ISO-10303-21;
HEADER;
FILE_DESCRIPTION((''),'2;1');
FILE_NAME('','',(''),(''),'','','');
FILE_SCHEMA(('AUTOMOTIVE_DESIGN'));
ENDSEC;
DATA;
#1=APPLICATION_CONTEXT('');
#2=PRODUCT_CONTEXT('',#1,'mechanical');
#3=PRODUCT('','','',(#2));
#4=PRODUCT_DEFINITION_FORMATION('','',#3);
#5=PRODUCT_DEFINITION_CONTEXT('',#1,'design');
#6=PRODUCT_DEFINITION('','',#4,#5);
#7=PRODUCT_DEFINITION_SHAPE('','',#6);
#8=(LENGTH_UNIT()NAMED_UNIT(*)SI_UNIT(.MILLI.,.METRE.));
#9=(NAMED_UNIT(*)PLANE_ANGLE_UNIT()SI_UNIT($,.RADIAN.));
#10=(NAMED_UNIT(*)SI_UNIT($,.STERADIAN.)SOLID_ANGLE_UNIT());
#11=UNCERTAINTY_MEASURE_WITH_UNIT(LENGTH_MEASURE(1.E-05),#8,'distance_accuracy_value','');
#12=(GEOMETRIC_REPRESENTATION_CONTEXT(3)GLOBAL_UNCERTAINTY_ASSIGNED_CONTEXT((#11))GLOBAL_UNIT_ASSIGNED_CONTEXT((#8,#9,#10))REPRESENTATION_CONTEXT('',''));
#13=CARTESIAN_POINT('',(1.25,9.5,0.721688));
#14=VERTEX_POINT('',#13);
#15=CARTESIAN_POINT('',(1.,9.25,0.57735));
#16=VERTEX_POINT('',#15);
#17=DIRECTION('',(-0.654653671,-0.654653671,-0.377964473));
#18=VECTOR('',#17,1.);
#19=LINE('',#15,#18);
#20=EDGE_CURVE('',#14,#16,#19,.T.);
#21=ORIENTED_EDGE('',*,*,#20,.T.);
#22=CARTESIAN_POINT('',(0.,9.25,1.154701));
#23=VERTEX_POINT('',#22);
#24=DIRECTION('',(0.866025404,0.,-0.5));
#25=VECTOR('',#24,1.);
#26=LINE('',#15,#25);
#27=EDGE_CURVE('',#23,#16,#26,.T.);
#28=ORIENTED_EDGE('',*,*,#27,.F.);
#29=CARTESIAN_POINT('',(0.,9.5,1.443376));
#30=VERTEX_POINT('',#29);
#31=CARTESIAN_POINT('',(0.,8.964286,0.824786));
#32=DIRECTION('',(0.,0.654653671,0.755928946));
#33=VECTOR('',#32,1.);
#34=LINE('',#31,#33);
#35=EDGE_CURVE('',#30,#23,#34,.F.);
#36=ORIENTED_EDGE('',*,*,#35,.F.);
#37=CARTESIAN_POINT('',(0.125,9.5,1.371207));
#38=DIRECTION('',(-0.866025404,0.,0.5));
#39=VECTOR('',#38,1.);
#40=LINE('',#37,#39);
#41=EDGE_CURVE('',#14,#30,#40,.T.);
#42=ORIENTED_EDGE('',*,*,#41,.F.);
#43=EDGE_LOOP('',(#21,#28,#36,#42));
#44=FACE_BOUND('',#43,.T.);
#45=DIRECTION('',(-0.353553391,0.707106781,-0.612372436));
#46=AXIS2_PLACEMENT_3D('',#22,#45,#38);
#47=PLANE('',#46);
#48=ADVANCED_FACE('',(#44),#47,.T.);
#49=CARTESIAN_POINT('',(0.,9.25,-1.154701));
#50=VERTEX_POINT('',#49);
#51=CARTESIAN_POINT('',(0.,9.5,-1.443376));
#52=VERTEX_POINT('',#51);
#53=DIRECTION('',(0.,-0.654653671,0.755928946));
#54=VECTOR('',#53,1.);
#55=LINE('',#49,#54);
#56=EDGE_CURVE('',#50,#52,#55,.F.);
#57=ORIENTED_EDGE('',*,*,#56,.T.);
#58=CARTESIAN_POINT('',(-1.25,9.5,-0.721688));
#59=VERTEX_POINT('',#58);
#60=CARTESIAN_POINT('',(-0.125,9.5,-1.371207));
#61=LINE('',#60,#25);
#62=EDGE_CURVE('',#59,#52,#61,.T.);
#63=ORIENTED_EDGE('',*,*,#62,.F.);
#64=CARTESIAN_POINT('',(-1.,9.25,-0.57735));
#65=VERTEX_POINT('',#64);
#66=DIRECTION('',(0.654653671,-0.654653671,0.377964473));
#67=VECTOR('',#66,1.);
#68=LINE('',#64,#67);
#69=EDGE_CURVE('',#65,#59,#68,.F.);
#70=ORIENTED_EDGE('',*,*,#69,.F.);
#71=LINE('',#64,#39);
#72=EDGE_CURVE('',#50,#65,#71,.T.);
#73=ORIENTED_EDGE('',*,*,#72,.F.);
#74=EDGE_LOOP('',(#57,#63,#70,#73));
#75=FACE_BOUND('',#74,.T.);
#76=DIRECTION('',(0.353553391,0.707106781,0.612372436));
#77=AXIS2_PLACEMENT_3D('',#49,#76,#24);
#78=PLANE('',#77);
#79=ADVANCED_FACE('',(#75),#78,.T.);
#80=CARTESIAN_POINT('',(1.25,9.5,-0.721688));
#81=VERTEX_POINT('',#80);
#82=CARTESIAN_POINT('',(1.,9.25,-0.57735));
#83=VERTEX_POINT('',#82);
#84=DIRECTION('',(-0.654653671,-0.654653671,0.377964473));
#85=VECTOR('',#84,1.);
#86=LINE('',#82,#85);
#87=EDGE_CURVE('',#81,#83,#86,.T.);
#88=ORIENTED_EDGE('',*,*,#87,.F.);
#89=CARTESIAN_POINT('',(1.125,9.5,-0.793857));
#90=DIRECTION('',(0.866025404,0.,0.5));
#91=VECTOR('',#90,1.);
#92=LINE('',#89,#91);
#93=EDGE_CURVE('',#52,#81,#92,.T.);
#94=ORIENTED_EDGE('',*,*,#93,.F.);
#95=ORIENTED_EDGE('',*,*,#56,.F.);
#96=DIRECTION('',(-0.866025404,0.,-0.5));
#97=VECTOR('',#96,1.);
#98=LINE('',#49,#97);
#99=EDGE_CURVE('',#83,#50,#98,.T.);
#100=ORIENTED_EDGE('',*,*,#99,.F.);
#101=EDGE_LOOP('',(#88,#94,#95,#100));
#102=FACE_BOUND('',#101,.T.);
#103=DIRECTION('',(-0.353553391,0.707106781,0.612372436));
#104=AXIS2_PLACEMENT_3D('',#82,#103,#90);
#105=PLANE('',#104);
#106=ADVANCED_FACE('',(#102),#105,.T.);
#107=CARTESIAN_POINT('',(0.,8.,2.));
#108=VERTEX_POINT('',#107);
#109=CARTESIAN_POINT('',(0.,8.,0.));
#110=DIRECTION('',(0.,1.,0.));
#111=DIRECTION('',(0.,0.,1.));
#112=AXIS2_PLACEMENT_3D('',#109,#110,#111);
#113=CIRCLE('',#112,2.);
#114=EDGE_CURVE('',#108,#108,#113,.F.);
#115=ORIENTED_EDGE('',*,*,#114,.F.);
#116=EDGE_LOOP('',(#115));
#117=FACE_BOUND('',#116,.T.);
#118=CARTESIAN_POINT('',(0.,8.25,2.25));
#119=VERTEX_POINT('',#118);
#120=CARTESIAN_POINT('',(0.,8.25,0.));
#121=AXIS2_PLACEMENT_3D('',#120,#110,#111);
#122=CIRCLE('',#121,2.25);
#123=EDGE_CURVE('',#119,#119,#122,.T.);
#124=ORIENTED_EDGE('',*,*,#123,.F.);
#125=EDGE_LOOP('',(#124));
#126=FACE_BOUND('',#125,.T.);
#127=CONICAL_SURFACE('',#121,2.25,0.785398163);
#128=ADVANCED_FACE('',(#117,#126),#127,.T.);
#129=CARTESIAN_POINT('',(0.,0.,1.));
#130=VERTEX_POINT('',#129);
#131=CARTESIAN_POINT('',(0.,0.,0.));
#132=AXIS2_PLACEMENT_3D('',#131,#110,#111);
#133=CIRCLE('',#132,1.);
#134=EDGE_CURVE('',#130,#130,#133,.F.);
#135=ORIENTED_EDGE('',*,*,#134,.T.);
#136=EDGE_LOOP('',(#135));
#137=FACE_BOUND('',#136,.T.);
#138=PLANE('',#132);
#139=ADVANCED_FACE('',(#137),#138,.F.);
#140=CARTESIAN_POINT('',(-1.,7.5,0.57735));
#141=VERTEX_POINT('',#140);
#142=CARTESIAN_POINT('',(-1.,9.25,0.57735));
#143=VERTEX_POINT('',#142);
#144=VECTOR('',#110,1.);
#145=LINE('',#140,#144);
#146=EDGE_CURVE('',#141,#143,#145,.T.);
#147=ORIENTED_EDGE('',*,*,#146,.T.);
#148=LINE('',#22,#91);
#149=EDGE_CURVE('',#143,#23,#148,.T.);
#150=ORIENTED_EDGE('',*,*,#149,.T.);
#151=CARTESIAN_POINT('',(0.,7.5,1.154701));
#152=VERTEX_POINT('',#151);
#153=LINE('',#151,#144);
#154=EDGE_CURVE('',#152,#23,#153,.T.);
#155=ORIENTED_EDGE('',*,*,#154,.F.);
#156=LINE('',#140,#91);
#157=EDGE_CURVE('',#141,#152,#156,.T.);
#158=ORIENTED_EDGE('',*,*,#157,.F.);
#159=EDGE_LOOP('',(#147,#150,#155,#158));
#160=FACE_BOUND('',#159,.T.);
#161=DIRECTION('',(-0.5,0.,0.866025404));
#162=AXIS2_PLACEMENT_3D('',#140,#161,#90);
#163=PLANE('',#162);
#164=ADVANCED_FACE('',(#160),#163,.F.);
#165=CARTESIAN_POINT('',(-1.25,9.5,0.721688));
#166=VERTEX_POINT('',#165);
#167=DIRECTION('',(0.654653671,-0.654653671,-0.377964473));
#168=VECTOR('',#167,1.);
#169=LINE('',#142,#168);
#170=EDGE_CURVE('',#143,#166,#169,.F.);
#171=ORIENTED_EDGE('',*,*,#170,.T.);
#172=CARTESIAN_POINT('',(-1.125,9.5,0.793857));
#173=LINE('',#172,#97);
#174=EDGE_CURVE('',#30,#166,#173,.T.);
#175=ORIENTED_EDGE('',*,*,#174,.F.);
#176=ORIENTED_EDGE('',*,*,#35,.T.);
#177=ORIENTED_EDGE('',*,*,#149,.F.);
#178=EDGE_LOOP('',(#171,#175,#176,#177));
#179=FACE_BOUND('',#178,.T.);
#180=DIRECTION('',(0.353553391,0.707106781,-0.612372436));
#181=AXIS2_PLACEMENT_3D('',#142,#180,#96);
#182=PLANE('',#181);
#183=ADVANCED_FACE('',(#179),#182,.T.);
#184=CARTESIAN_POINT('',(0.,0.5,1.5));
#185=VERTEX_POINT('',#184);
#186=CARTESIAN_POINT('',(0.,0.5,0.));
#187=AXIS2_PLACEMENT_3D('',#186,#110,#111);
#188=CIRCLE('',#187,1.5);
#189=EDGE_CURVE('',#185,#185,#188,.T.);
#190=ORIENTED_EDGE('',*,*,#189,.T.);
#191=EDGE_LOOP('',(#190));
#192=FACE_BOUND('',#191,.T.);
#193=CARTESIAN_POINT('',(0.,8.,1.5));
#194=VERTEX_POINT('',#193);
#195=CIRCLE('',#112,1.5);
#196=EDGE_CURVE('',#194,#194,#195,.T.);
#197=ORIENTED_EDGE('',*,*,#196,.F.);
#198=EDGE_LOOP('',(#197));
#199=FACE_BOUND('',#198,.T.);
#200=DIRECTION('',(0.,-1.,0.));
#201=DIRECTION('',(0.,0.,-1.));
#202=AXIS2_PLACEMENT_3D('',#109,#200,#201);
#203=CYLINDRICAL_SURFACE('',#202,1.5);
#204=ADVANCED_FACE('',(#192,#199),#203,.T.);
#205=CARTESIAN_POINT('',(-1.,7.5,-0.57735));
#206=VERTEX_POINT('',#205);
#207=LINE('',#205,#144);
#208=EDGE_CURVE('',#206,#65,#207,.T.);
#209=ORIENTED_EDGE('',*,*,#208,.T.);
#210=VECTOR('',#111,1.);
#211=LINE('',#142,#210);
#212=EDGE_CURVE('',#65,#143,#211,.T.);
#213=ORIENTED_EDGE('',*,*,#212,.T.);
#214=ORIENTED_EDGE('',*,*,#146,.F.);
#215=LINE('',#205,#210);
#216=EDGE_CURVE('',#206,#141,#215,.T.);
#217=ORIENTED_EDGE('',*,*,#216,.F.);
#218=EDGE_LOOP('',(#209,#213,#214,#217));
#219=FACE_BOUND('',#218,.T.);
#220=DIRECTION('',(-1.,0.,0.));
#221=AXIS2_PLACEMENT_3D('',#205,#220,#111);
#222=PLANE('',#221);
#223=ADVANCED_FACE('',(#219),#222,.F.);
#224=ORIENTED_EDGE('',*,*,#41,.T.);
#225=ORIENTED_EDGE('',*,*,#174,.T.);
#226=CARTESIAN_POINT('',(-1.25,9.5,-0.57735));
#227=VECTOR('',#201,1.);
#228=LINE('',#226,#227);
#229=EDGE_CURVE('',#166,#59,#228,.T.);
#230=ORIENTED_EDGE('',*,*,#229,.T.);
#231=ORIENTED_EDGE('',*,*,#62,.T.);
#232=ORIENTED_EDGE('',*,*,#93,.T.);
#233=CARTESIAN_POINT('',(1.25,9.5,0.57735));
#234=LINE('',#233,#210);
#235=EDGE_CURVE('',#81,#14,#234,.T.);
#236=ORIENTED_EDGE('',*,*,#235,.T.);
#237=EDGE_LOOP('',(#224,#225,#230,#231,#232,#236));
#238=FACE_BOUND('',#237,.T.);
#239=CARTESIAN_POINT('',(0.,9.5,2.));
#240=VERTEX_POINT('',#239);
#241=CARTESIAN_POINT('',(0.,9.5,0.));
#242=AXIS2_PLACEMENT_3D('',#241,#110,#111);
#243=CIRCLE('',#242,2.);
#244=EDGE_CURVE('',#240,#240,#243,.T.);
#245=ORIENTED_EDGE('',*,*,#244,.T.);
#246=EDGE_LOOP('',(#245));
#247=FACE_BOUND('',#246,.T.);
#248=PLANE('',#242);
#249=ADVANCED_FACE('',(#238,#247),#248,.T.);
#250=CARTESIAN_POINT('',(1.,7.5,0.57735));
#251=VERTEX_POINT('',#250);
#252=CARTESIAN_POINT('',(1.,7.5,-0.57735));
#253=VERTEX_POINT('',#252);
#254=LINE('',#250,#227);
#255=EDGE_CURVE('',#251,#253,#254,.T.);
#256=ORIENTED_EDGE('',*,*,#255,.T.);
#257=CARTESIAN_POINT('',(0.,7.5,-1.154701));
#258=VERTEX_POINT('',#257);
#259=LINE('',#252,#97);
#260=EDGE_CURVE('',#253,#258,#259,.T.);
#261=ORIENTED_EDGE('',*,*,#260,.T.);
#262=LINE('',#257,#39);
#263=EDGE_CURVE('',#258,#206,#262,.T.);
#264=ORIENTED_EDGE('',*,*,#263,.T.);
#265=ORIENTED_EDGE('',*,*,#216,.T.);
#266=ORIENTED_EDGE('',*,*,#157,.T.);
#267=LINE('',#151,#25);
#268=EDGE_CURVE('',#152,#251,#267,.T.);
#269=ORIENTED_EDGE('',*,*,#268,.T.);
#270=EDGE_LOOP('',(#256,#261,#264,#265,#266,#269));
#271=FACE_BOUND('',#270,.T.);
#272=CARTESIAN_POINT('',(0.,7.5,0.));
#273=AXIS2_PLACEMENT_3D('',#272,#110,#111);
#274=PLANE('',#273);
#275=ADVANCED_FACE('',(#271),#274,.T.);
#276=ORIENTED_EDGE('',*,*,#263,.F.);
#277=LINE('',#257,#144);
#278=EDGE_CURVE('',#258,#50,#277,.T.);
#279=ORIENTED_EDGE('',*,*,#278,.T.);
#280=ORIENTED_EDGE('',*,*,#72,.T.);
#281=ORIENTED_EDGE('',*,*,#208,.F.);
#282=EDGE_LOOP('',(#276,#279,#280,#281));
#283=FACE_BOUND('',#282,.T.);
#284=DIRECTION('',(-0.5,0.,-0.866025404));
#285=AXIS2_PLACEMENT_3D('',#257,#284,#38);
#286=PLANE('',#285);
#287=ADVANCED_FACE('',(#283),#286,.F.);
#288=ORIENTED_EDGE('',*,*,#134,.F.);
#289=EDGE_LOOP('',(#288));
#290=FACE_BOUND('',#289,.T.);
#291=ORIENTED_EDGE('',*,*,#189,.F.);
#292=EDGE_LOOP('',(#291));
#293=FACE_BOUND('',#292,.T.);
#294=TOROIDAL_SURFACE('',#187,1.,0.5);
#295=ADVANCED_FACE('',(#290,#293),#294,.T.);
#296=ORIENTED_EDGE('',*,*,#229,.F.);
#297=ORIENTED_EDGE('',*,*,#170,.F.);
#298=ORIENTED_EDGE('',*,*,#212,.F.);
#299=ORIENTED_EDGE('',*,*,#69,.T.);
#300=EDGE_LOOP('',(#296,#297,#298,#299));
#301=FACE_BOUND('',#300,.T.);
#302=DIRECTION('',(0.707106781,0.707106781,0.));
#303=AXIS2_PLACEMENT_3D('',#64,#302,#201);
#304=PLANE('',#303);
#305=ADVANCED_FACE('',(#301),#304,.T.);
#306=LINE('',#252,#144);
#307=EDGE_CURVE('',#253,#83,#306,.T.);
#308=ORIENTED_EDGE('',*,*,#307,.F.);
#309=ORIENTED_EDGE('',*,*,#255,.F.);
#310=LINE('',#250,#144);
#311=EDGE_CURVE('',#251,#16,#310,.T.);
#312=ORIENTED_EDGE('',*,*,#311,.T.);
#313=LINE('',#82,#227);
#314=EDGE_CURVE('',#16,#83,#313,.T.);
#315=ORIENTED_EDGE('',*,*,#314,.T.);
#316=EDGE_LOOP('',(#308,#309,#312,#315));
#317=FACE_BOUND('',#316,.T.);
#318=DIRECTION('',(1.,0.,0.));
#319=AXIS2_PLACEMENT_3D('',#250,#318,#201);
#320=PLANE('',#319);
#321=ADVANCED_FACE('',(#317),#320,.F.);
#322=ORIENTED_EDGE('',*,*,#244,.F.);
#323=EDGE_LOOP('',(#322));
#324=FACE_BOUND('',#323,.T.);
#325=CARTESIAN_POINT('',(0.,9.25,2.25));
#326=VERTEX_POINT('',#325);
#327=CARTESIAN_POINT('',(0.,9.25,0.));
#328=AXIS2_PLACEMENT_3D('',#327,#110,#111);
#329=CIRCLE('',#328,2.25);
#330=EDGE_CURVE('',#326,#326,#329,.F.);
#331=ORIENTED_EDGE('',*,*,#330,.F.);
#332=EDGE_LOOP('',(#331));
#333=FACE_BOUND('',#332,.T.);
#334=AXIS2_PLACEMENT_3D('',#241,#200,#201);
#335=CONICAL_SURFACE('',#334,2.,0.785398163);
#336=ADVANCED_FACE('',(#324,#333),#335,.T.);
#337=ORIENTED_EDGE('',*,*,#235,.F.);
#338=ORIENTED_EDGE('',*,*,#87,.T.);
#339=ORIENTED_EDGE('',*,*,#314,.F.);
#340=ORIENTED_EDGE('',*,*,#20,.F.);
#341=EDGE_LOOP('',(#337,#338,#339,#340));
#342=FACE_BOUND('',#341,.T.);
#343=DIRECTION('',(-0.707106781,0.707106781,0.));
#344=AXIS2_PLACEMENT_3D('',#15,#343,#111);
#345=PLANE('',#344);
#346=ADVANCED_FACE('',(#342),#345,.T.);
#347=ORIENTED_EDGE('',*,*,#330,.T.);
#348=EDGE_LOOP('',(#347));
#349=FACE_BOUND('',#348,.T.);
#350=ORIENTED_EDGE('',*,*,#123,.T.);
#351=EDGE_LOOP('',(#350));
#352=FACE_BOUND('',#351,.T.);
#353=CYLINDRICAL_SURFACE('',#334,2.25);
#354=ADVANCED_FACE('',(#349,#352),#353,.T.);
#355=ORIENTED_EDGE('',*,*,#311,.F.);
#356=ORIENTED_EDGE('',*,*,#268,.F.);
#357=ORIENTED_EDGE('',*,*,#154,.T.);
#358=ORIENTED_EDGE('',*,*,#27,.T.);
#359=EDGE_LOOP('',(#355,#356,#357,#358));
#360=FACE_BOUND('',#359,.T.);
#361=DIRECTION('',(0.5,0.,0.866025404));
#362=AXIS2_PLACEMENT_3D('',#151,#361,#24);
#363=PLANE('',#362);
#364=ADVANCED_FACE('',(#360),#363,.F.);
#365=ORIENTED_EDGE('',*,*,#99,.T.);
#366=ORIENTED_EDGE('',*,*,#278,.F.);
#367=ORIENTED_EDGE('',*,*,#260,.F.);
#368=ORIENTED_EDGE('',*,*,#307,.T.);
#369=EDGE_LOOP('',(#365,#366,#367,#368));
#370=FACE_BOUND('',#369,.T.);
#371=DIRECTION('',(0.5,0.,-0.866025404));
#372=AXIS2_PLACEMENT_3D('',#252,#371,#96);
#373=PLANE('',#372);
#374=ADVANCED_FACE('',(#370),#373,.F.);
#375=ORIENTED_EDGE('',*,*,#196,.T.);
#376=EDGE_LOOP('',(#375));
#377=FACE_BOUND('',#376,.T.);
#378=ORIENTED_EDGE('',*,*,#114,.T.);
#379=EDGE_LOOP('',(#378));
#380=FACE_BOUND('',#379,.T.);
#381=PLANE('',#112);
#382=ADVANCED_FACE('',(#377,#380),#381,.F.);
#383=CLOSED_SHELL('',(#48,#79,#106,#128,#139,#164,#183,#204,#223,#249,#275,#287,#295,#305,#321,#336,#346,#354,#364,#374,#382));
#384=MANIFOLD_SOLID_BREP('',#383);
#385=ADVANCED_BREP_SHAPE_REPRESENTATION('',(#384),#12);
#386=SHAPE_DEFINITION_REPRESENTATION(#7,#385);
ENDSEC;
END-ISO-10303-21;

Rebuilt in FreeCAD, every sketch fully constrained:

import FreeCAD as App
import Part
import Sketcher

V = App.Vector
Q = App.Units.Quantity


def edges_at(feature, points):
    """Names of the edges that pass closest to the given points."""
    edges = feature.Shape.Edges
    near = lambda p: min(range(len(edges)), key=lambda i: edges[i].distToShape(Part.Vertex(*p))[0])
    return sorted({f"Edge{near(p) + 1}" for p in points})

doc = App.newDocument("Part")
body = doc.addObject("PartDesign::Body", "Body")

sketch1 = doc.addObject("Sketcher::SketchObject", "Sketch")
body.addObject(sketch1)
sketch1.AttachmentSupport = (doc.XZ_Plane, [""])
sketch1.MapMode = "FlatFace"
sketch1.addGeometry(Part.Circle(V(0, 0, 0), V(0, 0, 1), 1.5), False)
sketch1.addConstraint(Sketcher.Constraint("Coincident", 0, 3, -1, 1))
sketch1.addConstraint(Sketcher.Constraint("Diameter", 0, 3.0))
pad1 = doc.addObject("PartDesign::Pad", "Pad")
body.addObject(pad1)
pad1.Profile = sketch1
pad1.Length = 8
pad1.Reversed = True

sketch2 = doc.addObject("Sketcher::SketchObject", "Sketch001")
body.addObject(sketch2)
sketch2.AttachmentSupport = (doc.XZ_Plane, [""])
sketch2.MapMode = "FlatFace"
sketch2.AttachmentOffset = App.Placement(V(0, 0, -8), App.Rotation())
sketch2.addGeometry(Part.Circle(V(0, 0, 0), V(0, 0, 1), 2.2), False)
sketch2.addConstraint(Sketcher.Constraint("Coincident", 0, 3, -1, 1))
sketch2.addConstraint(Sketcher.Constraint("Diameter", 0, 4.5))
pad2 = doc.addObject("PartDesign::Pad", "Pad001")
body.addObject(pad2)
pad2.Profile = sketch2
pad2.Length = 1.5
pad2.Reversed = True

sketch3 = doc.addObject("Sketcher::SketchObject", "Sketch002")
body.addObject(sketch3)
sketch3.AttachmentSupport = (doc.XZ_Plane, [""])
sketch3.MapMode = "FlatFace"
sketch3.AttachmentOffset = App.Placement(V(0, 0, -9.5), App.Rotation())
sketch3.addGeometry(Part.LineSegment(V(0, -1.2, 0), V(-1, -0.6, 0)), False)
sketch3.addGeometry(Part.LineSegment(V(-1, -0.6, 0), V(-1, 0.6, 0)), False)
sketch3.addGeometry(Part.LineSegment(V(-1, 0.6, 0), V(0, 1.2, 0)), False)
sketch3.addGeometry(Part.LineSegment(V(0, 1.2, 0), V(1, 0.6, 0)), False)
sketch3.addGeometry(Part.LineSegment(V(1, 0.6, 0), V(1, -0.6, 0)), False)
sketch3.addGeometry(Part.LineSegment(V(1, -0.6, 0), V(0, -1.2, 0)), False)
sketch3.addConstraint(Sketcher.Constraint("Coincident", 0, 2, 1, 1))
sketch3.addConstraint(Sketcher.Constraint("Coincident", 1, 2, 2, 1))
sketch3.addConstraint(Sketcher.Constraint("Coincident", 2, 2, 3, 1))
sketch3.addConstraint(Sketcher.Constraint("Coincident", 3, 2, 4, 1))
sketch3.addConstraint(Sketcher.Constraint("Coincident", 4, 2, 5, 1))
sketch3.addConstraint(Sketcher.Constraint("Coincident", 5, 2, 0, 1))
sketch3.addConstraint(Sketcher.Constraint("Vertical", 1))
sketch3.addConstraint(Sketcher.Constraint("Vertical", 4))
sketch3.addConstraint(Sketcher.Constraint("Symmetric", 0, 2, 3, 2, -1, 1))
sketch3.addConstraint(Sketcher.Constraint("Symmetric", 2, 2, 5, 2, -1, 1))
sketch3.addConstraint(Sketcher.Constraint("PointOnObject", 2, 2, -2))
sketch3.addConstraint(Sketcher.Constraint("Parallel", 2, 5))
sketch3.addConstraint(Sketcher.Constraint("Horizontal", 1, 2, 3, 2))
sketch3.addConstraint(Sketcher.Constraint("Angle", 0, Q("150 deg")))
sketch3.addConstraint(Sketcher.Constraint("DistanceX", 0, 2, -1, 1, 1.0))
sketch3.addConstraint(Sketcher.Constraint("DistanceY", 1, 1, 1, 2, 1.154701))
pocket1 = doc.addObject("PartDesign::Pocket", "Pocket")
body.addObject(pocket1)
pocket1.Profile = sketch3
pocket1.Length = 2
pocket1.Reversed = True
doc.recompute()

chamfer = doc.addObject("PartDesign::Chamfer", "Chamfer")
body.addObject(chamfer)
chamfer.Base = (pocket1, edges_at(pocket1, [
    (0.5, 9.5, -0.866),
    (-0.5, 9.5, -0.866),
    (-1, 9.5, 0),
    (-0.5, 9.5, 0.866),
    (0.5, 9.5, 0.866),
    (1, 9.5, 0),
    (0, 8, -2.25),
    (0, 9.5, -2.25),
]))
chamfer.Size = 0.25
doc.recompute()

fillet = doc.addObject("PartDesign::Fillet", "Fillet")
body.addObject(fillet)
fillet.Base = (chamfer, edges_at(chamfer, [(0, 0, -1.5)]))
fillet.Radius = 0.5

doc.recompute()
